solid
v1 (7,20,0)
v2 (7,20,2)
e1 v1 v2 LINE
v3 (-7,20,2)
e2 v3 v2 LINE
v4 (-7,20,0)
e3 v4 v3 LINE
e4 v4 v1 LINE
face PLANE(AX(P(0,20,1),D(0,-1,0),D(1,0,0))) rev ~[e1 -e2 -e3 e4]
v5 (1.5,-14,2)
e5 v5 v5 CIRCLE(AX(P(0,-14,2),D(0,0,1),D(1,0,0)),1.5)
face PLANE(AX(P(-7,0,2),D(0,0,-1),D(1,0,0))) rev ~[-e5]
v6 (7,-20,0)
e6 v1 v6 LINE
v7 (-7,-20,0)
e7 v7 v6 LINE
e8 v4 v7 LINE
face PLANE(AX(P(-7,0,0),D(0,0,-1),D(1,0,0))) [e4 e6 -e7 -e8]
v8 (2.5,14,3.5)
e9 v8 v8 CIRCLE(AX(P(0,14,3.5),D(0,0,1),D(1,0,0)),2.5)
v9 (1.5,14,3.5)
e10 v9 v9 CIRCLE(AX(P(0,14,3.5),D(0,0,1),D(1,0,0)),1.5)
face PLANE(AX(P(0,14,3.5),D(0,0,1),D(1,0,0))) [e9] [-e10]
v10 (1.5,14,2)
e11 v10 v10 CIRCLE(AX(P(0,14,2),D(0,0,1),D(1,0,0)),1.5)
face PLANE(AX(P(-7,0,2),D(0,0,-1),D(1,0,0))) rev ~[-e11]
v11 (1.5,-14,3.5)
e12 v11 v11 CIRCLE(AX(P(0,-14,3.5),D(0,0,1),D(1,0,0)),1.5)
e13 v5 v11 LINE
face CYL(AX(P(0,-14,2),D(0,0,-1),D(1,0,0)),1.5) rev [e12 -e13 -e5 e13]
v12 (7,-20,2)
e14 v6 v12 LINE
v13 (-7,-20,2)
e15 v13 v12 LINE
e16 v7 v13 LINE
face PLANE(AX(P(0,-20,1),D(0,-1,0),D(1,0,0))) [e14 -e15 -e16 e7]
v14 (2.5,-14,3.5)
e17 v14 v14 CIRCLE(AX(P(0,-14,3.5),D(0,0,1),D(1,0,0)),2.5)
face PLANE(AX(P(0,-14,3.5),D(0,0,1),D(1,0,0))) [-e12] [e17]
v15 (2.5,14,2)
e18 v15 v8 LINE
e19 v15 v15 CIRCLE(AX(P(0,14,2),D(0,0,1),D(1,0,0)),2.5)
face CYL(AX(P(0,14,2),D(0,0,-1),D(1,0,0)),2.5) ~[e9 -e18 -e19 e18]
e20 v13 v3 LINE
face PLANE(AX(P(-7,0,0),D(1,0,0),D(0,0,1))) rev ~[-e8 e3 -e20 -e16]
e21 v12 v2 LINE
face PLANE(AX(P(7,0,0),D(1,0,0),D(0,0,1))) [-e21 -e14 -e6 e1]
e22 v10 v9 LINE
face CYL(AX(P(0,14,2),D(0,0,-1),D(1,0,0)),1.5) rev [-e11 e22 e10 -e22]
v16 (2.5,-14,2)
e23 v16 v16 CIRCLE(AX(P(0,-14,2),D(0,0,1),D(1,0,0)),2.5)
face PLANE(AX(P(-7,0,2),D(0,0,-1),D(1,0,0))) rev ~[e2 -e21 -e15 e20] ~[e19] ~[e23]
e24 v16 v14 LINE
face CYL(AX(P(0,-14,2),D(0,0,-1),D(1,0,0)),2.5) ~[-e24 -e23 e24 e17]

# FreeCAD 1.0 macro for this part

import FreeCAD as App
import Part
import Sketcher

V = App.Vector
Q = App.Units.Quantity


def add_polygon(sketch, points):
    """Adds a closed chain of lines whose ends are joined by coincident constraints."""
    first, n = sketch.GeometryCount, len(points)
    for a, b in zip(points, points[1:] + points[:1]):
        sketch.addGeometry(Part.LineSegment(App.Vector(*a, 0), App.Vector(*b, 0)), False)
    for i in range(n):
        sketch.addConstraint(Sketcher.Constraint("Coincident", first + i, 2, first + (i + 1) % n, 1))

doc = App.newDocument("Part")
body = doc.addObject("PartDesign::Body", "Body")

sketch1 = body.newObject("Sketcher::SketchObject", "Sketch")
sketch1.AttachmentSupport = (doc.getObject("XZ_Plane"), [""])
sketch1.MapMode = "FlatFace"
add_polygon(sketch1, [(-7, 2), (-7, 0), (7, 0), (7, 2)])
sketch1.addConstraint([
    Sketcher.Constraint("Vertical", 0),
    Sketcher.Constraint("Horizontal", 1),
    Sketcher.Constraint("Vertical", 2),
    Sketcher.Constraint("Horizontal", 3),
    Sketcher.Constraint("Symmetric", 0, 2, 1, 2, -1, 1),
    Sketcher.Constraint("DistanceX", 1, 1, 1, 2, Q("14 mm")),
    Sketcher.Constraint("DistanceY", 0, 2, 0, 1, Q("2 mm")),
])
pad1 = body.newObject("PartDesign::Pad", "Pad")
pad1.Profile = sketch1
pad1.Type = "TwoLengths"
pad1.Length = 20
pad1.Length2 = 20

sketch2 = body.newObject("Sketcher::SketchObject", "Sketch001")
sketch2.AttachmentSupport = (doc.getObject("XY_Plane"), [""])
sketch2.MapMode = "FlatFace"
sketch2.AttachmentOffset = App.Placement(V(0, 0, 2), App.Rotation())
sketch2.addGeometry([
    Part.Circle(V(0, 14, 0), V(0, 0, 1), 2.5),
    Part.Circle(V(0, 14, 0), V(0, 0, 1), 1.5),
    Part.Circle(V(0, -14, 0), V(0, 0, 1), 2.5),
    Part.Circle(V(0, -14, 0), V(0, 0, 1), 1.5),
], False)
sketch2.addConstraint([
    Sketcher.Constraint("Coincident", 1, 3, 0, 3),
    Sketcher.Constraint("Coincident", 3, 3, 2, 3),
    Sketcher.Constraint("Equal", 0, 2),
    Sketcher.Constraint("Equal", 1, 3),
    Sketcher.Constraint("Symmetric", 0, 3, 2, 3, -1, 1),
    Sketcher.Constraint("PointOnObject", 0, 3, -2),
    Sketcher.Constraint("Diameter", 0, Q("5 mm")),
    Sketcher.Constraint("Diameter", 1, Q("3 mm")),
    Sketcher.Constraint("DistanceY", -1, 1, 0, 3, Q("14 mm")),
])
pad2 = body.newObject("PartDesign::Pad", "Pad001")
pad2.Profile = sketch2
pad2.Length = 1.5

doc.recompute()
